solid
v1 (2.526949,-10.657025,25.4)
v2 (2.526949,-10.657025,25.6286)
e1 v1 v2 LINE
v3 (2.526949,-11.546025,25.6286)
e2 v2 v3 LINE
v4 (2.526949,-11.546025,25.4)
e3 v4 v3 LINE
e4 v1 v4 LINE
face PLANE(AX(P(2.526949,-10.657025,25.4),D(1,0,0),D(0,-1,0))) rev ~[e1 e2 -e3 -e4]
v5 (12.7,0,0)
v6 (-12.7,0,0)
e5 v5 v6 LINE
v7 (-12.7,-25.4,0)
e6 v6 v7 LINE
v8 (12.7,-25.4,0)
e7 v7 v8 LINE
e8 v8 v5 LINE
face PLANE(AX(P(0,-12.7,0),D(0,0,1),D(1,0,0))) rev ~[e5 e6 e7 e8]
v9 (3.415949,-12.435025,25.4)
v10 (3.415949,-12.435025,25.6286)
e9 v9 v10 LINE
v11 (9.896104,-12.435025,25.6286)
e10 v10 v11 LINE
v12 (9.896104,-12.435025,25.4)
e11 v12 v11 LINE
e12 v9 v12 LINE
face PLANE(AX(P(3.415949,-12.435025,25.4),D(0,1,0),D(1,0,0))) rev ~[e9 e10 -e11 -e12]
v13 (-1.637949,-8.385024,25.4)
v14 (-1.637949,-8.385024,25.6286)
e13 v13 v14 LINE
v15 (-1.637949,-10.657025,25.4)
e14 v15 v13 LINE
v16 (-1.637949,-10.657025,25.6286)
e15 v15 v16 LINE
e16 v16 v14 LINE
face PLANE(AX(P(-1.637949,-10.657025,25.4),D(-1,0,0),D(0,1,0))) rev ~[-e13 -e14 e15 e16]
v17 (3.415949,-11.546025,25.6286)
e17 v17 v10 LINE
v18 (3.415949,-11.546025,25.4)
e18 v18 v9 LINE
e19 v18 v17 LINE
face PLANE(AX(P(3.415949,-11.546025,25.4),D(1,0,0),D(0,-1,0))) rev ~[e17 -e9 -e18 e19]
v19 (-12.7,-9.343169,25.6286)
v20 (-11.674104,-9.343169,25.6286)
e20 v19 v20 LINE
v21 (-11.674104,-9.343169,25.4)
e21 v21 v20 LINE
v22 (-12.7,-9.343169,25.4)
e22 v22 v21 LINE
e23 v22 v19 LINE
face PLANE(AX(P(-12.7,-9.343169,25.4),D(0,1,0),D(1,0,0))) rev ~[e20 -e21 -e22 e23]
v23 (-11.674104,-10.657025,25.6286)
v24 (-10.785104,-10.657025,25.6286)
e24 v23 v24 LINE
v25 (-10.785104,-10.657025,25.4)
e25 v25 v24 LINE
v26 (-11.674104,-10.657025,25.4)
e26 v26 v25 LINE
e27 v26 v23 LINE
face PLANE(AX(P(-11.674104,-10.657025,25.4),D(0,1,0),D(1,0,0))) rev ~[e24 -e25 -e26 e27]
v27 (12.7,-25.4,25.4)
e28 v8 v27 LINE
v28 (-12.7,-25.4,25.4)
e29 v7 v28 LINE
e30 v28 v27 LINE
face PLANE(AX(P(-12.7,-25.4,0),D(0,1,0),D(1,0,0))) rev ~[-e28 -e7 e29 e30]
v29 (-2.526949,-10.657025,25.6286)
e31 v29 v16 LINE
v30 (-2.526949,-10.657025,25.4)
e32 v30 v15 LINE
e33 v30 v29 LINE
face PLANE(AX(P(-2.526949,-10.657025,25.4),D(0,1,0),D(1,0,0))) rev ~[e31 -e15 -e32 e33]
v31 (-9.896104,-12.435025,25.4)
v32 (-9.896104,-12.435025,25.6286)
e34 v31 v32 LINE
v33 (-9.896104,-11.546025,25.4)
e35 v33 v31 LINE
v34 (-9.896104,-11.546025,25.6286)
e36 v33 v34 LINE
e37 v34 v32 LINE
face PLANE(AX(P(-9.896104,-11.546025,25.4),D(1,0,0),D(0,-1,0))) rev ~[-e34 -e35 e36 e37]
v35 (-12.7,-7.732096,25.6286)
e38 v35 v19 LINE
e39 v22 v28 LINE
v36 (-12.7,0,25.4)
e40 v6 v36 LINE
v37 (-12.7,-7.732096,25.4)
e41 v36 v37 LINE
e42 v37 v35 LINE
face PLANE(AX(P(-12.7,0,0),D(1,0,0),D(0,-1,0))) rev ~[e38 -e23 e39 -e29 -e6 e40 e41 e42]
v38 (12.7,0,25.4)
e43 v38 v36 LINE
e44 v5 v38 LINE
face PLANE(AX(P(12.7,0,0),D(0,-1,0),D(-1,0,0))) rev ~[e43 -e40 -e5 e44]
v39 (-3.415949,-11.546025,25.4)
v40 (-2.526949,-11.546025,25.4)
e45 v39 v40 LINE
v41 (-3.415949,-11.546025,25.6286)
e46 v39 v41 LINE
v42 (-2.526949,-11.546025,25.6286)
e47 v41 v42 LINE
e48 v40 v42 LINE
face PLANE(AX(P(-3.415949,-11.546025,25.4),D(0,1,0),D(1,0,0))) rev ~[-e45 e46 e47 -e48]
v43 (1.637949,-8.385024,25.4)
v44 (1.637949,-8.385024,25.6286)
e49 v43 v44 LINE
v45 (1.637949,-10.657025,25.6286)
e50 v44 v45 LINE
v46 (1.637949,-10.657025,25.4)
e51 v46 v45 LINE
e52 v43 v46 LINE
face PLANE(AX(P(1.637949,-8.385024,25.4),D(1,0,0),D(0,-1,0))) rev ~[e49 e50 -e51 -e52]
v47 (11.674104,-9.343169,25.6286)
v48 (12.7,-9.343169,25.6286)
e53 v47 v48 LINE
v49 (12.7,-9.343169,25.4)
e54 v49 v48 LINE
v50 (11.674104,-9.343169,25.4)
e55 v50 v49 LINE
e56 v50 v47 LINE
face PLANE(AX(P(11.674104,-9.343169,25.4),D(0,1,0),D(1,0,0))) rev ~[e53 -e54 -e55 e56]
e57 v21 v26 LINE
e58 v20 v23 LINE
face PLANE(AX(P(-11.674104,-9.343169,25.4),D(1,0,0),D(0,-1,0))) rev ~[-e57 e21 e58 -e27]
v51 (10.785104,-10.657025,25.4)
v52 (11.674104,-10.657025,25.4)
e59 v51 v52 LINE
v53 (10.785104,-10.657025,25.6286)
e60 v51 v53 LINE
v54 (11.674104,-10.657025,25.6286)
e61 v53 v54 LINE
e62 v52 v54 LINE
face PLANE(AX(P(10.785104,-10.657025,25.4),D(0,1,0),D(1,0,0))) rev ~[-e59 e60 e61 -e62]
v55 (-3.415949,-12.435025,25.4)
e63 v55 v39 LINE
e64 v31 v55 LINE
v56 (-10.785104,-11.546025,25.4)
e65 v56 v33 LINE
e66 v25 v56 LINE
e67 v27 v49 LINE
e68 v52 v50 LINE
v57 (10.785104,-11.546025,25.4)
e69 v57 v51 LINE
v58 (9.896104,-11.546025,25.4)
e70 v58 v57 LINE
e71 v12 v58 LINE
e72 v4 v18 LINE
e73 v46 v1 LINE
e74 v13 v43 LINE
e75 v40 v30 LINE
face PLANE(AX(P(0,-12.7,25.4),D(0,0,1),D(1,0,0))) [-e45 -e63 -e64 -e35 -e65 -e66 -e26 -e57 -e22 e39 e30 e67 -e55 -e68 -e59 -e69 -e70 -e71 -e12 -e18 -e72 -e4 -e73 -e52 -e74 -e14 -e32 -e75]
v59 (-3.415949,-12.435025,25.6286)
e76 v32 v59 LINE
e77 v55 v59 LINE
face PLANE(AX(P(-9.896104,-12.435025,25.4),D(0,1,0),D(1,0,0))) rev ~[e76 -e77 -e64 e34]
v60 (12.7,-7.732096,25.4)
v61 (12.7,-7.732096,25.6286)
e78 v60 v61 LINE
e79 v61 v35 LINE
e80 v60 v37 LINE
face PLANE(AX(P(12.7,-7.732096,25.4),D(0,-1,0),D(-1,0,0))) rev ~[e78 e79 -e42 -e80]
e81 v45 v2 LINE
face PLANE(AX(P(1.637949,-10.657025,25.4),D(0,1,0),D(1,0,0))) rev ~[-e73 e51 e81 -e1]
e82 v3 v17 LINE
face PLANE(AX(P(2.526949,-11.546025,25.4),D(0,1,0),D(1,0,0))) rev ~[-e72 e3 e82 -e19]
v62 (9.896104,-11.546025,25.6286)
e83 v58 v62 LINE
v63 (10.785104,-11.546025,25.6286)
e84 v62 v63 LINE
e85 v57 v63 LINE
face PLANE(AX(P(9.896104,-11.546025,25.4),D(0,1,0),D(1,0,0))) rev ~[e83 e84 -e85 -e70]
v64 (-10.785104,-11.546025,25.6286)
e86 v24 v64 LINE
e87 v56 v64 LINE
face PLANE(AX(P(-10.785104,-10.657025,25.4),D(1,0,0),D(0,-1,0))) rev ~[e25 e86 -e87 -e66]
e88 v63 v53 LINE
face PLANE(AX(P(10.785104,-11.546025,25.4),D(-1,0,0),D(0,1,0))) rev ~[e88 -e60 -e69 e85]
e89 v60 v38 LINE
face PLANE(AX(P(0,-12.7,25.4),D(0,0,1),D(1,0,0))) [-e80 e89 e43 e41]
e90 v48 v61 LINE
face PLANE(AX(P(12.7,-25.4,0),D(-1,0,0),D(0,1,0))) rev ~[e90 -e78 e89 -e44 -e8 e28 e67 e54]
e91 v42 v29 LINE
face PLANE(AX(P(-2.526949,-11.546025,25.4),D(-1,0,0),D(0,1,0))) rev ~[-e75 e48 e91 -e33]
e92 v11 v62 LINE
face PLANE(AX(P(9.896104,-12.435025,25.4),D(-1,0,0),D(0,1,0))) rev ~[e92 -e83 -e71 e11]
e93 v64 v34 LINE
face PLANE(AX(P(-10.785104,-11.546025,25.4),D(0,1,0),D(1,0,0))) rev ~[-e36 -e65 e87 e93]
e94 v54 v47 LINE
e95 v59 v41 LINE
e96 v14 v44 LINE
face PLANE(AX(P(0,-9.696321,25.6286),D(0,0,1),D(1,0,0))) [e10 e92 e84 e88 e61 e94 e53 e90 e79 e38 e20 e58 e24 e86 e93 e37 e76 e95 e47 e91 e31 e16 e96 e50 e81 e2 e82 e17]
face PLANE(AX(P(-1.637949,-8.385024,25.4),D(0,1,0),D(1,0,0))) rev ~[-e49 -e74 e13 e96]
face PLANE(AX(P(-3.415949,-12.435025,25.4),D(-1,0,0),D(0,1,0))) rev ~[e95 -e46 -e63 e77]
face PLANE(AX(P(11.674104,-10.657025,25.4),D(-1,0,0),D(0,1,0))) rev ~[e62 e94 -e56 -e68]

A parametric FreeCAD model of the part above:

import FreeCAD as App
import Part
import Sketcher
Q = App.Units.Quantity

doc = App.newDocument("Part")
body = doc.addObject("PartDesign::Body", "Body")

# Sketch on XY plane
sketch1 = body.newObject("Sketcher::SketchObject", "Sketch")
sketch1.AttachmentSupport = (doc.getObject("XY_Plane"), [""])
sketch1.MapMode = "FlatFace"
sketch1.addGeometry([
    Part.LineSegment(App.Vector(13, 0, 0), App.Vector(-13, 0, 0)),
    Part.LineSegment(App.Vector(-13, 0, 0), App.Vector(-13, -25, 0)),
    Part.LineSegment(App.Vector(-13, -25, 0), App.Vector(13, -25, 0)),
    Part.LineSegment(App.Vector(13, -25, 0), App.Vector(13, 0, 0)),
], False)
sketch1.addConstraint([
    Sketcher.Constraint("Coincident", 0, 2, 1, 1),
    Sketcher.Constraint("Coincident", 1, 2, 2, 1),
    Sketcher.Constraint("Coincident", 2, 2, 3, 1),
    Sketcher.Constraint("Coincident", 3, 2, 0, 1),
    Sketcher.Constraint("Horizontal", 0),
    Sketcher.Constraint("Vertical", 1),
    Sketcher.Constraint("Horizontal", 2),
    Sketcher.Constraint("Vertical", 3),
    Sketcher.Constraint("Symmetric", 0, 2, 3, 2, -1, 1),
    Sketcher.Constraint("Equal", 2, 1),
    Sketcher.Constraint("DistanceX", 0, 2, 0, 1, Q("1 in")),
])
pad1 = body.newObject("PartDesign::Pad", "Pad")
pad1.Profile = sketch1
pad1.Length = Q("1 in")

# Sketch on XY plane
sketch2 = body.newObject("Sketcher::SketchObject", "Sketch001")
sketch2.AttachmentSupport = (doc.getObject("XY_Plane"), [""])
sketch2.MapMode = "FlatFace"
sketch2.AttachmentOffset = App.Placement(App.Vector(0, 0, 1 * 25.4), App.Rotation())
sketch2.addGeometry([
    Part.LineSegment(App.Vector(-12.7, -7.7, 0), App.Vector(-12.7, -9.3, 0)),  # 0
    Part.LineSegment(App.Vector(-12.7, -9.3, 0), App.Vector(-11.7, -9.3, 0)),  # 1
    Part.LineSegment(App.Vector(-11.7, -9.3, 0), App.Vector(-11.7, -10.7, 0)),  # 2
    Part.LineSegment(App.Vector(-11.7, -10.7, 0), App.Vector(-10.8, -10.7, 0)),  # 3
    Part.LineSegment(App.Vector(-10.8, -10.7, 0), App.Vector(-10.8, -11.5, 0)),  # 4
    Part.LineSegment(App.Vector(-10.8, -11.5, 0), App.Vector(-9.9, -11.5, 0)),  # 5
    Part.LineSegment(App.Vector(-9.9, -11.5, 0), App.Vector(-9.9, -12.4, 0)),  # 6
    Part.LineSegment(App.Vector(-9.9, -12.4, 0), App.Vector(-3.4, -12.4, 0)),  # 7
    Part.LineSegment(App.Vector(-3.4, -12.4, 0), App.Vector(-3.4, -11.5, 0)),  # 8
    Part.LineSegment(App.Vector(-3.4, -11.5, 0), App.Vector(-2.5, -11.5, 0)),  # 9
    Part.LineSegment(App.Vector(-2.5, -11.5, 0), App.Vector(-2.5, -10.7, 0)),  # 10
    Part.LineSegment(App.Vector(-2.5, -10.7, 0), App.Vector(-1.6, -10.7, 0)),  # 11
    Part.LineSegment(App.Vector(-1.6, -10.7, 0), App.Vector(-1.6, -8.4, 0)),  # 12
    Part.LineSegment(App.Vector(-1.6, -8.4, 0), App.Vector(1.6, -8.4, 0)),  # 13
    Part.LineSegment(App.Vector(1.6, -8.4, 0), App.Vector(1.6, -10.7, 0)),  # 14
    Part.LineSegment(App.Vector(1.6, -10.7, 0), App.Vector(2.5, -10.7, 0)),  # 15
    Part.LineSegment(App.Vector(2.5, -10.7, 0), App.Vector(2.5, -11.5, 0)),  # 16
    Part.LineSegment(App.Vector(2.5, -11.5, 0), App.Vector(3.4, -11.5, 0)),  # 17
    Part.LineSegment(App.Vector(3.4, -11.5, 0), App.Vector(3.4, -12.4, 0)),  # 18
    Part.LineSegment(App.Vector(3.4, -12.4, 0), App.Vector(9.9, -12.4, 0)),  # 19
    Part.LineSegment(App.Vector(9.9, -12.4, 0), App.Vector(9.9, -11.5, 0)),  # 20
    Part.LineSegment(App.Vector(9.9, -11.5, 0), App.Vector(10.8, -11.5, 0)),  # 21
    Part.LineSegment(App.Vector(10.8, -11.5, 0), App.Vector(10.8, -10.7, 0)),  # 22
    Part.LineSegment(App.Vector(10.8, -10.7, 0), App.Vector(11.7, -10.7, 0)),  # 23
    Part.LineSegment(App.Vector(11.7, -10.7, 0), App.Vector(11.7, -9.3, 0)),  # 24
    Part.LineSegment(App.Vector(11.7, -9.3, 0), App.Vector(12.7, -9.3, 0)),  # 25
    Part.LineSegment(App.Vector(12.7, -9.3, 0), App.Vector(12.7, -7.7, 0)),  # 26
    Part.LineSegment(App.Vector(12.7, -7.7, 0), App.Vector(-12.7, -7.7, 0)),  # 27
], False)
sketch2.addConstraint([
    Sketcher.Constraint("Coincident", 0, 2, 1, 1),
    Sketcher.Constraint("Coincident", 1, 2, 2, 1),
    Sketcher.Constraint("Coincident", 2, 2, 3, 1),
    Sketcher.Constraint("Coincident", 3, 2, 4, 1),
    Sketcher.Constraint("Coincident", 4, 2, 5, 1),
    Sketcher.Constraint("Coincident", 5, 2, 6, 1),
    Sketcher.Constraint("Coincident", 6, 2, 7, 1),
    Sketcher.Constraint("Coincident", 7, 2, 8, 1),
    Sketcher.Constraint("Coincident", 8, 2, 9, 1),
    Sketcher.Constraint("Coincident", 9, 2, 10, 1),
    Sketcher.Constraint("Coincident", 10, 2, 11, 1),
    Sketcher.Constraint("Coincident", 11, 2, 12, 1),
    Sketcher.Constraint("Coincident", 12, 2, 13, 1),
    Sketcher.Constraint("Coincident", 13, 2, 14, 1),
    Sketcher.Constraint("Coincident", 14, 2, 15, 1),
    Sketcher.Constraint("Coincident", 15, 2, 16, 1),
    Sketcher.Constraint("Coincident", 16, 2, 17, 1),
    Sketcher.Constraint("Coincident", 17, 2, 18, 1),
    Sketcher.Constraint("Coincident", 18, 2, 19, 1),
    Sketcher.Constraint("Coincident", 19, 2, 20, 1),
    Sketcher.Constraint("Coincident", 20, 2, 21, 1),
    Sketcher.Constraint("Coincident", 21, 2, 22, 1),
    Sketcher.Constraint("Coincident", 22, 2, 23, 1),
    Sketcher.Constraint("Coincident", 23, 2, 24, 1),
    Sketcher.Constraint("Coincident", 24, 2, 25, 1),
    Sketcher.Constraint("Coincident", 25, 2, 26, 1),
    Sketcher.Constraint("Coincident", 26, 2, 27, 1),
    Sketcher.Constraint("Coincident", 27, 2, 0, 1),
    Sketcher.Constraint("Vertical", 0),
    Sketcher.Constraint("Horizontal", 1),
    Sketcher.Constraint("Vertical", 2),
    Sketcher.Constraint("Horizontal", 3),
    Sketcher.Constraint("Vertical", 4),
    Sketcher.Constraint("Horizontal", 5),
    Sketcher.Constraint("Vertical", 6),
    Sketcher.Constraint("Horizontal", 7),
    Sketcher.Constraint("Vertical", 8),
    Sketcher.Constraint("Horizontal", 9),
    Sketcher.Constraint("Vertical", 10),
    Sketcher.Constraint("Horizontal", 11),
    Sketcher.Constraint("Vertical", 12),
    Sketcher.Constraint("Horizontal", 13),
    Sketcher.Constraint("Vertical", 14),
    Sketcher.Constraint("Horizontal", 15),
    Sketcher.Constraint("Vertical", 16),
    Sketcher.Constraint("Horizontal", 17),
    Sketcher.Constraint("Vertical", 18),
    Sketcher.Constraint("Horizontal", 19),
    Sketcher.Constraint("Vertical", 20),
    Sketcher.Constraint("Horizontal", 21),
    Sketcher.Constraint("Vertical", 22),
    Sketcher.Constraint("Horizontal", 23),
    Sketcher.Constraint("Vertical", 24),
    Sketcher.Constraint("Horizontal", 25),
    Sketcher.Constraint("Vertical", 26),
    Sketcher.Constraint("Horizontal", 27),
    Sketcher.Constraint("Symmetric", 11, 2, 14, 2, -2),
    Sketcher.Constraint("Symmetric", 9, 2, 16, 2, -2),
    Sketcher.Constraint("Symmetric", 7, 2, 18, 2, -2),
    Sketcher.Constraint("Symmetric", 5, 2, 20, 2, -2),
    Sketcher.Constraint("Symmetric", 3, 2, 22, 2, -2),
    Sketcher.Constraint("Symmetric", 1, 2, 24, 2, -2),
    Sketcher.Constraint("Horizontal", 5, 2, 8, 2),
    Sketcher.Constraint("Horizontal", 3, 2, 10, 2),
    Sketcher.Constraint("Equal", 3, 5),
    Sketcher.Constraint("Equal", 5, 9),
    Sketcher.Constraint("Equal", 9, 11),
    Sketcher.Constraint("Equal", 1, 25),
    Sketcher.Constraint("Equal", 23, 4),
    Sketcher.Constraint("Equal", 4, 6),
    Sketcher.Constraint("DistanceX", 27, 2, 27, 1, Q("1 in")),
    Sketcher.Constraint("DistanceX", 3, 1, 3, 2, Q("0.035 in")),
    Sketcher.Constraint("DistanceX", 13, 1, 13, 2, Q("3.275898 mm")),
    Sketcher.Constraint("DistanceY", 12, 1, 12, 2, Q("2.272001 mm")),
    Sketcher.Constraint("DistanceX", 1, 1, 1, 2, Q("1.025896 mm")),
    Sketcher.Constraint("DistanceY", 0, 2, 0, 1, Q("1.611073 mm")),
    Sketcher.Constraint("DistanceY", 2, 2, 2, 1, Q("1.313856 mm")),
    Sketcher.Constraint("DistanceY", 0, 2, -1, 1, Q("9.343169 mm")),
])
pad2 = body.newObject("PartDesign::Pad", "Pad001")
pad2.Profile = sketch2
pad2.Length = Q("0.009 in")

doc.recompute()
